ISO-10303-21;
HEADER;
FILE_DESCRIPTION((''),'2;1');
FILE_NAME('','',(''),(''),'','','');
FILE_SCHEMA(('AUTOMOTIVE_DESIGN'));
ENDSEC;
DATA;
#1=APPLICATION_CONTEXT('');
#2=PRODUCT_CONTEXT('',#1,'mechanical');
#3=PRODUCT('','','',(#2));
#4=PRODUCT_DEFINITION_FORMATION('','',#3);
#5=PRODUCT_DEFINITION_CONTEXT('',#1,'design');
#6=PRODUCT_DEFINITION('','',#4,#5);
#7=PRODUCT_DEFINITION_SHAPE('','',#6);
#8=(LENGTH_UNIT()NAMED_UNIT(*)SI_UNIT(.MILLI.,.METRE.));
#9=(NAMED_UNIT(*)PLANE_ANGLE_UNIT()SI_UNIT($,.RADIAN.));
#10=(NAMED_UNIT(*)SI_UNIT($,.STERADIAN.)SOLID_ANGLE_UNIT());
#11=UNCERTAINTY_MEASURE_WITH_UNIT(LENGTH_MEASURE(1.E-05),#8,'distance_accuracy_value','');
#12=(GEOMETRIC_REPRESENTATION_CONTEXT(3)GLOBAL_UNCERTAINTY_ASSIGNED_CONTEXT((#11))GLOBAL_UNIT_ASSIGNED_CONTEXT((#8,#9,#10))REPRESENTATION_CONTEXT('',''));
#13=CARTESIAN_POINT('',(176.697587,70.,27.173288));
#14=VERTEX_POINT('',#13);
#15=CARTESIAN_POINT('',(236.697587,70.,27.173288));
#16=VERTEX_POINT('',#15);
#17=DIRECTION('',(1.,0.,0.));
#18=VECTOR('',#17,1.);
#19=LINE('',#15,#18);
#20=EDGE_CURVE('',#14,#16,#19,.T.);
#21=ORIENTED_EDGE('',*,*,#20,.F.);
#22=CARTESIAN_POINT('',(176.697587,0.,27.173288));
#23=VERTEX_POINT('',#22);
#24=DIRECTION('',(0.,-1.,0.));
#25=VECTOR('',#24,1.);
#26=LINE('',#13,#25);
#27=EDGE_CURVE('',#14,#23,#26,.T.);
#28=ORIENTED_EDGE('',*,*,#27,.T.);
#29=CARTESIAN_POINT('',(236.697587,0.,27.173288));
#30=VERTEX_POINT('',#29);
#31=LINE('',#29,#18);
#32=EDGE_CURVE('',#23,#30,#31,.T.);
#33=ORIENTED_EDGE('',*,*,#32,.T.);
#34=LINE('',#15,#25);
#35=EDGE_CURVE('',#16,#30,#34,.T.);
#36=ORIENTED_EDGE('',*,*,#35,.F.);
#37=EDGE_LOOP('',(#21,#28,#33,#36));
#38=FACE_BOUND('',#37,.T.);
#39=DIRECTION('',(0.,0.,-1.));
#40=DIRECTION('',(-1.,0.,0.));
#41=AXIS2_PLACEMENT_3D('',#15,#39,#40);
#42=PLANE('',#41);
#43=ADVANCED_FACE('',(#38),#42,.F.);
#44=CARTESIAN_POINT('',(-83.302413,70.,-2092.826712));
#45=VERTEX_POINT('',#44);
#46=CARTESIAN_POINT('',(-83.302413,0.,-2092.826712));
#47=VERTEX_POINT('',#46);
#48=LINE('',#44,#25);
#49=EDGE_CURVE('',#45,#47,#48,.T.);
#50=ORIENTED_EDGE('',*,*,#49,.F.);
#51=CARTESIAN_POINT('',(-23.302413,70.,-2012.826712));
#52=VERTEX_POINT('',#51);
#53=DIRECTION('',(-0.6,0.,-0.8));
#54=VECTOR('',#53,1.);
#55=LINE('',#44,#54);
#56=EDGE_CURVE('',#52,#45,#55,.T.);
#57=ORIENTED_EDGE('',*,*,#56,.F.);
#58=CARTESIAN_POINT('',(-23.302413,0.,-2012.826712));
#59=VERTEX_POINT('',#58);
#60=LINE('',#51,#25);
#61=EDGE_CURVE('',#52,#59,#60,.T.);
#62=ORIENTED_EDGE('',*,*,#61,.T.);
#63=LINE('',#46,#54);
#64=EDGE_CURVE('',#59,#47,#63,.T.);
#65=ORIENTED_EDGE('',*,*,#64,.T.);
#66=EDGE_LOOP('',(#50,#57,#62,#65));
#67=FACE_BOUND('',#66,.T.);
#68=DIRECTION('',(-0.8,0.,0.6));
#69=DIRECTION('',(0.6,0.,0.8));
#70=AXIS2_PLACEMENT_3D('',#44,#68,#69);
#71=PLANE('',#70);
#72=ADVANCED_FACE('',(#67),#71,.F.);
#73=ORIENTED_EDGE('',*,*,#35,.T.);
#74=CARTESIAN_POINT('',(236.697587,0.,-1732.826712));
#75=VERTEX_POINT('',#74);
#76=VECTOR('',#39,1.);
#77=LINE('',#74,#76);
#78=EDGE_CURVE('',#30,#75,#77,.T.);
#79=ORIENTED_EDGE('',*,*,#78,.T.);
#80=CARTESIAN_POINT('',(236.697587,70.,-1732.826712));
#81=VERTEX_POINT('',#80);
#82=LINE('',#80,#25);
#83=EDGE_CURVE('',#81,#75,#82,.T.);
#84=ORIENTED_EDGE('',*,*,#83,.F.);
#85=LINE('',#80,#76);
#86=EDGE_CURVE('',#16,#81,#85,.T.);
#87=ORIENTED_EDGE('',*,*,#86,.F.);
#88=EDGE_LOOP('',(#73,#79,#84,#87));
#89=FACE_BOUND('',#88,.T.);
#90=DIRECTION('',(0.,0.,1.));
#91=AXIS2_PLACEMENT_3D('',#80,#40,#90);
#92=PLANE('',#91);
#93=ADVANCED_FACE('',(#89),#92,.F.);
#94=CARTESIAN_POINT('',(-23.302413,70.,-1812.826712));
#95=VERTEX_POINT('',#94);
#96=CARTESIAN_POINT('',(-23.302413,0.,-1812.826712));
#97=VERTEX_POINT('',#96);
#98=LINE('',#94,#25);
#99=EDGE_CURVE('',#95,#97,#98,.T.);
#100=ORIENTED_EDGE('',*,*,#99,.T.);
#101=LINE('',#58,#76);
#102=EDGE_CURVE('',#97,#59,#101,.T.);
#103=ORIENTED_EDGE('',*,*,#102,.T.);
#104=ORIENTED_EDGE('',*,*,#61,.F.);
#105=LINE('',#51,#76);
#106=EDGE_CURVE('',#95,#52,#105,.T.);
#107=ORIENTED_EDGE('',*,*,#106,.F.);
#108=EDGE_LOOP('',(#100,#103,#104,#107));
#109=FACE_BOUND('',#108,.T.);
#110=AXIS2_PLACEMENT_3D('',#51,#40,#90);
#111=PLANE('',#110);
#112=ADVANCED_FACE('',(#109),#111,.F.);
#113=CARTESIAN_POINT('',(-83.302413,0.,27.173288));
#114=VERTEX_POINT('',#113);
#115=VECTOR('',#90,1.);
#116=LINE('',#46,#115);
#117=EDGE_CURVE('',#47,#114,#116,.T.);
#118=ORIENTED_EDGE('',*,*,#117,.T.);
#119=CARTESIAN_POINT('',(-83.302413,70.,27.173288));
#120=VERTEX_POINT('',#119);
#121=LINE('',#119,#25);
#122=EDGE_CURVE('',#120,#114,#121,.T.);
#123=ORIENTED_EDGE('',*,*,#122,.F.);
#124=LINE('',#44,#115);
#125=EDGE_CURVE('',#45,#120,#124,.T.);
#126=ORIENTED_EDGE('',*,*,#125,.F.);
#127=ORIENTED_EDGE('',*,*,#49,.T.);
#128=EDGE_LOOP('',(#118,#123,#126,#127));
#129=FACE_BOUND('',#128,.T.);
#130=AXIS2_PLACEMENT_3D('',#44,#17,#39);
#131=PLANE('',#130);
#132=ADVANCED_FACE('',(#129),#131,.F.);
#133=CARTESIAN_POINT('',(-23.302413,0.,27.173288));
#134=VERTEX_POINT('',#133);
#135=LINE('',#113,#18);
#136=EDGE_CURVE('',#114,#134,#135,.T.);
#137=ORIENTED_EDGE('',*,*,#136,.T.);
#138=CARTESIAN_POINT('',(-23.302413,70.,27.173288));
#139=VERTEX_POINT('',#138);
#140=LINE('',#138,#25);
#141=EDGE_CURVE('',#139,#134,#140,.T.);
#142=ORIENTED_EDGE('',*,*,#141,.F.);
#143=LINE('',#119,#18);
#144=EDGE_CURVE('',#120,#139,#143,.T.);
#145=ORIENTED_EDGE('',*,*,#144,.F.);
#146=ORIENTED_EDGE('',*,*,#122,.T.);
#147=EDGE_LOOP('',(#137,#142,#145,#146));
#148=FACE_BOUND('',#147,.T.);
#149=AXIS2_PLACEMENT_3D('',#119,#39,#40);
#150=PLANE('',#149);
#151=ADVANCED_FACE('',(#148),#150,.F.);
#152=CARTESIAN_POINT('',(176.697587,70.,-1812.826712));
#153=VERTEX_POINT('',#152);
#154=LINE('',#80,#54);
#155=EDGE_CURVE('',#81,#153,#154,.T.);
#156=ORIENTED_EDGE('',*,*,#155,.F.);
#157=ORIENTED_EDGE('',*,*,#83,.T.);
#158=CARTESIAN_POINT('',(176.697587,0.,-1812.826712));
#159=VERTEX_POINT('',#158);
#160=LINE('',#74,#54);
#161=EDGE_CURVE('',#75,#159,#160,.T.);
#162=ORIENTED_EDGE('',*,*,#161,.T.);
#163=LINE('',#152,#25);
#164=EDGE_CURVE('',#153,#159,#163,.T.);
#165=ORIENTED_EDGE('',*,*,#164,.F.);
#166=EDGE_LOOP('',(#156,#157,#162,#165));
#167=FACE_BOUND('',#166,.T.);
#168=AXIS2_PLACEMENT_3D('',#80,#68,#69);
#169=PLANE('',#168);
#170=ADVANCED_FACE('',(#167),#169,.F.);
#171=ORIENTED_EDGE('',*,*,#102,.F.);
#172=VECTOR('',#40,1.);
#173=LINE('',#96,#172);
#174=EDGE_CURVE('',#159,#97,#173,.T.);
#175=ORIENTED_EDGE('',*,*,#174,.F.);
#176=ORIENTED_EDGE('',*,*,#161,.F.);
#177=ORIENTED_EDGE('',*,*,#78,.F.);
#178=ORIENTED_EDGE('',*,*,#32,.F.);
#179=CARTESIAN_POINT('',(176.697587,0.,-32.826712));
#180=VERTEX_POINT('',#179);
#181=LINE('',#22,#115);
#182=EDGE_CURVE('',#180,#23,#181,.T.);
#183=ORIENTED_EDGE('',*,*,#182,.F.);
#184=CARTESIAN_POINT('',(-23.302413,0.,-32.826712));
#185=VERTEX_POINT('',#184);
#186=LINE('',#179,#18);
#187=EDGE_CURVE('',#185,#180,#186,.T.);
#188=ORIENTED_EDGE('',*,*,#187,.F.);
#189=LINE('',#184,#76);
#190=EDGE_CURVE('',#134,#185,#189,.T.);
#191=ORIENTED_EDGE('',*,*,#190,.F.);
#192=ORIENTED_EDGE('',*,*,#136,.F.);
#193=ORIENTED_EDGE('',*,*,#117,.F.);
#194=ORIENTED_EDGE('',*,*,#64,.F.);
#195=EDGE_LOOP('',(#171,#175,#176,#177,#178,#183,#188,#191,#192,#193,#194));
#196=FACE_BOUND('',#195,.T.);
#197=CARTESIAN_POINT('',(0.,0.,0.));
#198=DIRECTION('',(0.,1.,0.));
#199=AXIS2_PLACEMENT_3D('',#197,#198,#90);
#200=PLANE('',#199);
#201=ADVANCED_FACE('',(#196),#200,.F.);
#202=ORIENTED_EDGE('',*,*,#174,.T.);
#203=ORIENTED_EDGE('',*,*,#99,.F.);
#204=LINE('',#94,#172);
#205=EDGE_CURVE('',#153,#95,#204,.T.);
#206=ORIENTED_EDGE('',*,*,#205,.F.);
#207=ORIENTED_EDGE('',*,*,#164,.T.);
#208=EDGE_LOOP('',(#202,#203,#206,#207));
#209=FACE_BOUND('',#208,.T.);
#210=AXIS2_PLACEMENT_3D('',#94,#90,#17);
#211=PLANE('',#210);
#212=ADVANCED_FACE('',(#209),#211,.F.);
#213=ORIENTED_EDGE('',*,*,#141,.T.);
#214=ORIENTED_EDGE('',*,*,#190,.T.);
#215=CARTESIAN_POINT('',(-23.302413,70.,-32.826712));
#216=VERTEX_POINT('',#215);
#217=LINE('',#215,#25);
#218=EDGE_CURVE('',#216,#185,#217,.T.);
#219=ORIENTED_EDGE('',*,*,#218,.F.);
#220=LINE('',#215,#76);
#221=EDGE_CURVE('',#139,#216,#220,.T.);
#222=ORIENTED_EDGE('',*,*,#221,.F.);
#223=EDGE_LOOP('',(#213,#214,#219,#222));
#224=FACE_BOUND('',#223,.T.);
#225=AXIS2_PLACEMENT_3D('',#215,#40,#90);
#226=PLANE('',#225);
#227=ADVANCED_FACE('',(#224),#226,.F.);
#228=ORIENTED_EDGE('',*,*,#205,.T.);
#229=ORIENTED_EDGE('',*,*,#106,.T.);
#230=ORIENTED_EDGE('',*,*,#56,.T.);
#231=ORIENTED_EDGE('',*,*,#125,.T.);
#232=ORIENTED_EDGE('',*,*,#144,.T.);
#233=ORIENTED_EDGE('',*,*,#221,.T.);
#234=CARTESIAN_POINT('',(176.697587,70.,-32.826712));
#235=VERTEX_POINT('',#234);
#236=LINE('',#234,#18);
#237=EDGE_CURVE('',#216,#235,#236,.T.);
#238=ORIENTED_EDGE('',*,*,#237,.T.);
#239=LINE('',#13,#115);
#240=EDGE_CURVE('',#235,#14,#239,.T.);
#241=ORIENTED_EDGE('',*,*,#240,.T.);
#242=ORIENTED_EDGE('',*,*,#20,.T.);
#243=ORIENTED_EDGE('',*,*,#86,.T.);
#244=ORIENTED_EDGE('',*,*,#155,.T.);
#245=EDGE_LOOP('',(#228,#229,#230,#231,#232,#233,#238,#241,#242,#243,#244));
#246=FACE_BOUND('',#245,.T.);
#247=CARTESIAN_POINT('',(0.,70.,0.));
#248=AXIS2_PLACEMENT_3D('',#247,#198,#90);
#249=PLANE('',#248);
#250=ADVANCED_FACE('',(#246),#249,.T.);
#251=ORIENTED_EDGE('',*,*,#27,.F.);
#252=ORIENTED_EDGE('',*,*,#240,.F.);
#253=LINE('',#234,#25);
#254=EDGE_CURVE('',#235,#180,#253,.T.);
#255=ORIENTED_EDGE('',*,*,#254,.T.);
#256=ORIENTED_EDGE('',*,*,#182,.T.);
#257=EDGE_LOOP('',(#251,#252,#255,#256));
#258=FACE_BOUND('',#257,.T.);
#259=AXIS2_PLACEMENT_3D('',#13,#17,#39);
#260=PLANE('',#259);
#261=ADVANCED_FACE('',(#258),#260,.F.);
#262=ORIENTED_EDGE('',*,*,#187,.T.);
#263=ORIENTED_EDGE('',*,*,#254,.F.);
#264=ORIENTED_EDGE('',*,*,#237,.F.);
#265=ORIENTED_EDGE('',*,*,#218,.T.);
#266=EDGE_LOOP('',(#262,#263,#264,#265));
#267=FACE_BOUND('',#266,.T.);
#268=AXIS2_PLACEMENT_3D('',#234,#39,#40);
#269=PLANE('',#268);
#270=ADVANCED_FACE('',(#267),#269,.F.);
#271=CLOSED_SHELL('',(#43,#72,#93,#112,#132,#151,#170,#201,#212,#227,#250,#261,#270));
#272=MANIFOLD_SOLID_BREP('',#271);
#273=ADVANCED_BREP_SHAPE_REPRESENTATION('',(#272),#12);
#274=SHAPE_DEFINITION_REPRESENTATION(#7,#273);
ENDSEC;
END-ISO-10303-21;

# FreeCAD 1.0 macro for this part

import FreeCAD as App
import Part
import Sketcher
from FreeCAD import Vector


def add_polygon(sketch, points):
    """Adds a closed chain of lines whose ends are joined by coincident constraints."""
    first, n = sketch.GeometryCount, len(points)
    for a, b in zip(points, points[1:] + points[:1]):
        sketch.addGeometry(Part.LineSegment(App.Vector(*a, 0), App.Vector(*b, 0)), False)
    for i in range(n):
        sketch.addConstraint(Sketcher.Constraint("Coincident", first + i, 2, first + (i + 1) % n, 1))

doc = App.newDocument("Part")
body = doc.addObject("PartDesign::Body", "Body")

# Sketch on XZ plane
sketch1 = doc.addObject("Sketcher::SketchObject", "Sketch")
body.addObject(sketch1)
sketch1.AttachmentSupport = (doc.XZ_Plane, [""])
sketch1.MapMode = "FlatFace"
add_polygon(sketch1, [(177, 27), (237, 27), (237, -1733), (177, -1813), (-23, -1813), (-23, -2013), (-83, -2093), (-83, 27), (-23, 27), (-23, -33), (177, -33)])  # lines 0-10
sketch1.addConstraint([
    Sketcher.Constraint("Horizontal", 0),
    Sketcher.Constraint("Vertical", 1),
    Sketcher.Constraint("Horizontal", 3),
    Sketcher.Constraint("Vertical", 4),
    Sketcher.Constraint("Vertical", 6),
    Sketcher.Constraint("Horizontal", 7),
    Sketcher.Constraint("Vertical", 8),
    Sketcher.Constraint("Horizontal", 9),
    Sketcher.Constraint("Vertical", 10),
    Sketcher.Constraint("Parallel", 2, 5),
    Sketcher.Constraint("Horizontal", 0, 2, 6, 2),
    Sketcher.Constraint("Vertical", 4, 2, 7, 2),
    Sketcher.Constraint("Vertical", 2, 2, 9, 2),
    Sketcher.Constraint("Equal", 0, 7),
    Sketcher.Constraint("Equal", 9, 4),
    Sketcher.Constraint("Equal", 7, 8),
    Sketcher.Constraint("DistanceX", 0, 1, 0, 2, 60.0),
    Sketcher.Constraint("DistanceX", 3, 2, 3, 1, 200.0),
    Sketcher.Constraint("DistanceY", 1, 2, 1, 1, 1760.0),
    Sketcher.Constraint("DistanceY", 6, 1, 6, 2, 2120.0),
    Sketcher.Constraint("DistanceX", -1, 1, 0, 2, 236.697587),
    Sketcher.Constraint("DistanceY", -1, 1, 0, 2, 27.173288),
])
pad1 = doc.addObject("PartDesign::Pad", "Pad")
body.addObject(pad1)
pad1.Profile = sketch1
pad1.Length = 70
pad1.Reversed = True

doc.recompute()
